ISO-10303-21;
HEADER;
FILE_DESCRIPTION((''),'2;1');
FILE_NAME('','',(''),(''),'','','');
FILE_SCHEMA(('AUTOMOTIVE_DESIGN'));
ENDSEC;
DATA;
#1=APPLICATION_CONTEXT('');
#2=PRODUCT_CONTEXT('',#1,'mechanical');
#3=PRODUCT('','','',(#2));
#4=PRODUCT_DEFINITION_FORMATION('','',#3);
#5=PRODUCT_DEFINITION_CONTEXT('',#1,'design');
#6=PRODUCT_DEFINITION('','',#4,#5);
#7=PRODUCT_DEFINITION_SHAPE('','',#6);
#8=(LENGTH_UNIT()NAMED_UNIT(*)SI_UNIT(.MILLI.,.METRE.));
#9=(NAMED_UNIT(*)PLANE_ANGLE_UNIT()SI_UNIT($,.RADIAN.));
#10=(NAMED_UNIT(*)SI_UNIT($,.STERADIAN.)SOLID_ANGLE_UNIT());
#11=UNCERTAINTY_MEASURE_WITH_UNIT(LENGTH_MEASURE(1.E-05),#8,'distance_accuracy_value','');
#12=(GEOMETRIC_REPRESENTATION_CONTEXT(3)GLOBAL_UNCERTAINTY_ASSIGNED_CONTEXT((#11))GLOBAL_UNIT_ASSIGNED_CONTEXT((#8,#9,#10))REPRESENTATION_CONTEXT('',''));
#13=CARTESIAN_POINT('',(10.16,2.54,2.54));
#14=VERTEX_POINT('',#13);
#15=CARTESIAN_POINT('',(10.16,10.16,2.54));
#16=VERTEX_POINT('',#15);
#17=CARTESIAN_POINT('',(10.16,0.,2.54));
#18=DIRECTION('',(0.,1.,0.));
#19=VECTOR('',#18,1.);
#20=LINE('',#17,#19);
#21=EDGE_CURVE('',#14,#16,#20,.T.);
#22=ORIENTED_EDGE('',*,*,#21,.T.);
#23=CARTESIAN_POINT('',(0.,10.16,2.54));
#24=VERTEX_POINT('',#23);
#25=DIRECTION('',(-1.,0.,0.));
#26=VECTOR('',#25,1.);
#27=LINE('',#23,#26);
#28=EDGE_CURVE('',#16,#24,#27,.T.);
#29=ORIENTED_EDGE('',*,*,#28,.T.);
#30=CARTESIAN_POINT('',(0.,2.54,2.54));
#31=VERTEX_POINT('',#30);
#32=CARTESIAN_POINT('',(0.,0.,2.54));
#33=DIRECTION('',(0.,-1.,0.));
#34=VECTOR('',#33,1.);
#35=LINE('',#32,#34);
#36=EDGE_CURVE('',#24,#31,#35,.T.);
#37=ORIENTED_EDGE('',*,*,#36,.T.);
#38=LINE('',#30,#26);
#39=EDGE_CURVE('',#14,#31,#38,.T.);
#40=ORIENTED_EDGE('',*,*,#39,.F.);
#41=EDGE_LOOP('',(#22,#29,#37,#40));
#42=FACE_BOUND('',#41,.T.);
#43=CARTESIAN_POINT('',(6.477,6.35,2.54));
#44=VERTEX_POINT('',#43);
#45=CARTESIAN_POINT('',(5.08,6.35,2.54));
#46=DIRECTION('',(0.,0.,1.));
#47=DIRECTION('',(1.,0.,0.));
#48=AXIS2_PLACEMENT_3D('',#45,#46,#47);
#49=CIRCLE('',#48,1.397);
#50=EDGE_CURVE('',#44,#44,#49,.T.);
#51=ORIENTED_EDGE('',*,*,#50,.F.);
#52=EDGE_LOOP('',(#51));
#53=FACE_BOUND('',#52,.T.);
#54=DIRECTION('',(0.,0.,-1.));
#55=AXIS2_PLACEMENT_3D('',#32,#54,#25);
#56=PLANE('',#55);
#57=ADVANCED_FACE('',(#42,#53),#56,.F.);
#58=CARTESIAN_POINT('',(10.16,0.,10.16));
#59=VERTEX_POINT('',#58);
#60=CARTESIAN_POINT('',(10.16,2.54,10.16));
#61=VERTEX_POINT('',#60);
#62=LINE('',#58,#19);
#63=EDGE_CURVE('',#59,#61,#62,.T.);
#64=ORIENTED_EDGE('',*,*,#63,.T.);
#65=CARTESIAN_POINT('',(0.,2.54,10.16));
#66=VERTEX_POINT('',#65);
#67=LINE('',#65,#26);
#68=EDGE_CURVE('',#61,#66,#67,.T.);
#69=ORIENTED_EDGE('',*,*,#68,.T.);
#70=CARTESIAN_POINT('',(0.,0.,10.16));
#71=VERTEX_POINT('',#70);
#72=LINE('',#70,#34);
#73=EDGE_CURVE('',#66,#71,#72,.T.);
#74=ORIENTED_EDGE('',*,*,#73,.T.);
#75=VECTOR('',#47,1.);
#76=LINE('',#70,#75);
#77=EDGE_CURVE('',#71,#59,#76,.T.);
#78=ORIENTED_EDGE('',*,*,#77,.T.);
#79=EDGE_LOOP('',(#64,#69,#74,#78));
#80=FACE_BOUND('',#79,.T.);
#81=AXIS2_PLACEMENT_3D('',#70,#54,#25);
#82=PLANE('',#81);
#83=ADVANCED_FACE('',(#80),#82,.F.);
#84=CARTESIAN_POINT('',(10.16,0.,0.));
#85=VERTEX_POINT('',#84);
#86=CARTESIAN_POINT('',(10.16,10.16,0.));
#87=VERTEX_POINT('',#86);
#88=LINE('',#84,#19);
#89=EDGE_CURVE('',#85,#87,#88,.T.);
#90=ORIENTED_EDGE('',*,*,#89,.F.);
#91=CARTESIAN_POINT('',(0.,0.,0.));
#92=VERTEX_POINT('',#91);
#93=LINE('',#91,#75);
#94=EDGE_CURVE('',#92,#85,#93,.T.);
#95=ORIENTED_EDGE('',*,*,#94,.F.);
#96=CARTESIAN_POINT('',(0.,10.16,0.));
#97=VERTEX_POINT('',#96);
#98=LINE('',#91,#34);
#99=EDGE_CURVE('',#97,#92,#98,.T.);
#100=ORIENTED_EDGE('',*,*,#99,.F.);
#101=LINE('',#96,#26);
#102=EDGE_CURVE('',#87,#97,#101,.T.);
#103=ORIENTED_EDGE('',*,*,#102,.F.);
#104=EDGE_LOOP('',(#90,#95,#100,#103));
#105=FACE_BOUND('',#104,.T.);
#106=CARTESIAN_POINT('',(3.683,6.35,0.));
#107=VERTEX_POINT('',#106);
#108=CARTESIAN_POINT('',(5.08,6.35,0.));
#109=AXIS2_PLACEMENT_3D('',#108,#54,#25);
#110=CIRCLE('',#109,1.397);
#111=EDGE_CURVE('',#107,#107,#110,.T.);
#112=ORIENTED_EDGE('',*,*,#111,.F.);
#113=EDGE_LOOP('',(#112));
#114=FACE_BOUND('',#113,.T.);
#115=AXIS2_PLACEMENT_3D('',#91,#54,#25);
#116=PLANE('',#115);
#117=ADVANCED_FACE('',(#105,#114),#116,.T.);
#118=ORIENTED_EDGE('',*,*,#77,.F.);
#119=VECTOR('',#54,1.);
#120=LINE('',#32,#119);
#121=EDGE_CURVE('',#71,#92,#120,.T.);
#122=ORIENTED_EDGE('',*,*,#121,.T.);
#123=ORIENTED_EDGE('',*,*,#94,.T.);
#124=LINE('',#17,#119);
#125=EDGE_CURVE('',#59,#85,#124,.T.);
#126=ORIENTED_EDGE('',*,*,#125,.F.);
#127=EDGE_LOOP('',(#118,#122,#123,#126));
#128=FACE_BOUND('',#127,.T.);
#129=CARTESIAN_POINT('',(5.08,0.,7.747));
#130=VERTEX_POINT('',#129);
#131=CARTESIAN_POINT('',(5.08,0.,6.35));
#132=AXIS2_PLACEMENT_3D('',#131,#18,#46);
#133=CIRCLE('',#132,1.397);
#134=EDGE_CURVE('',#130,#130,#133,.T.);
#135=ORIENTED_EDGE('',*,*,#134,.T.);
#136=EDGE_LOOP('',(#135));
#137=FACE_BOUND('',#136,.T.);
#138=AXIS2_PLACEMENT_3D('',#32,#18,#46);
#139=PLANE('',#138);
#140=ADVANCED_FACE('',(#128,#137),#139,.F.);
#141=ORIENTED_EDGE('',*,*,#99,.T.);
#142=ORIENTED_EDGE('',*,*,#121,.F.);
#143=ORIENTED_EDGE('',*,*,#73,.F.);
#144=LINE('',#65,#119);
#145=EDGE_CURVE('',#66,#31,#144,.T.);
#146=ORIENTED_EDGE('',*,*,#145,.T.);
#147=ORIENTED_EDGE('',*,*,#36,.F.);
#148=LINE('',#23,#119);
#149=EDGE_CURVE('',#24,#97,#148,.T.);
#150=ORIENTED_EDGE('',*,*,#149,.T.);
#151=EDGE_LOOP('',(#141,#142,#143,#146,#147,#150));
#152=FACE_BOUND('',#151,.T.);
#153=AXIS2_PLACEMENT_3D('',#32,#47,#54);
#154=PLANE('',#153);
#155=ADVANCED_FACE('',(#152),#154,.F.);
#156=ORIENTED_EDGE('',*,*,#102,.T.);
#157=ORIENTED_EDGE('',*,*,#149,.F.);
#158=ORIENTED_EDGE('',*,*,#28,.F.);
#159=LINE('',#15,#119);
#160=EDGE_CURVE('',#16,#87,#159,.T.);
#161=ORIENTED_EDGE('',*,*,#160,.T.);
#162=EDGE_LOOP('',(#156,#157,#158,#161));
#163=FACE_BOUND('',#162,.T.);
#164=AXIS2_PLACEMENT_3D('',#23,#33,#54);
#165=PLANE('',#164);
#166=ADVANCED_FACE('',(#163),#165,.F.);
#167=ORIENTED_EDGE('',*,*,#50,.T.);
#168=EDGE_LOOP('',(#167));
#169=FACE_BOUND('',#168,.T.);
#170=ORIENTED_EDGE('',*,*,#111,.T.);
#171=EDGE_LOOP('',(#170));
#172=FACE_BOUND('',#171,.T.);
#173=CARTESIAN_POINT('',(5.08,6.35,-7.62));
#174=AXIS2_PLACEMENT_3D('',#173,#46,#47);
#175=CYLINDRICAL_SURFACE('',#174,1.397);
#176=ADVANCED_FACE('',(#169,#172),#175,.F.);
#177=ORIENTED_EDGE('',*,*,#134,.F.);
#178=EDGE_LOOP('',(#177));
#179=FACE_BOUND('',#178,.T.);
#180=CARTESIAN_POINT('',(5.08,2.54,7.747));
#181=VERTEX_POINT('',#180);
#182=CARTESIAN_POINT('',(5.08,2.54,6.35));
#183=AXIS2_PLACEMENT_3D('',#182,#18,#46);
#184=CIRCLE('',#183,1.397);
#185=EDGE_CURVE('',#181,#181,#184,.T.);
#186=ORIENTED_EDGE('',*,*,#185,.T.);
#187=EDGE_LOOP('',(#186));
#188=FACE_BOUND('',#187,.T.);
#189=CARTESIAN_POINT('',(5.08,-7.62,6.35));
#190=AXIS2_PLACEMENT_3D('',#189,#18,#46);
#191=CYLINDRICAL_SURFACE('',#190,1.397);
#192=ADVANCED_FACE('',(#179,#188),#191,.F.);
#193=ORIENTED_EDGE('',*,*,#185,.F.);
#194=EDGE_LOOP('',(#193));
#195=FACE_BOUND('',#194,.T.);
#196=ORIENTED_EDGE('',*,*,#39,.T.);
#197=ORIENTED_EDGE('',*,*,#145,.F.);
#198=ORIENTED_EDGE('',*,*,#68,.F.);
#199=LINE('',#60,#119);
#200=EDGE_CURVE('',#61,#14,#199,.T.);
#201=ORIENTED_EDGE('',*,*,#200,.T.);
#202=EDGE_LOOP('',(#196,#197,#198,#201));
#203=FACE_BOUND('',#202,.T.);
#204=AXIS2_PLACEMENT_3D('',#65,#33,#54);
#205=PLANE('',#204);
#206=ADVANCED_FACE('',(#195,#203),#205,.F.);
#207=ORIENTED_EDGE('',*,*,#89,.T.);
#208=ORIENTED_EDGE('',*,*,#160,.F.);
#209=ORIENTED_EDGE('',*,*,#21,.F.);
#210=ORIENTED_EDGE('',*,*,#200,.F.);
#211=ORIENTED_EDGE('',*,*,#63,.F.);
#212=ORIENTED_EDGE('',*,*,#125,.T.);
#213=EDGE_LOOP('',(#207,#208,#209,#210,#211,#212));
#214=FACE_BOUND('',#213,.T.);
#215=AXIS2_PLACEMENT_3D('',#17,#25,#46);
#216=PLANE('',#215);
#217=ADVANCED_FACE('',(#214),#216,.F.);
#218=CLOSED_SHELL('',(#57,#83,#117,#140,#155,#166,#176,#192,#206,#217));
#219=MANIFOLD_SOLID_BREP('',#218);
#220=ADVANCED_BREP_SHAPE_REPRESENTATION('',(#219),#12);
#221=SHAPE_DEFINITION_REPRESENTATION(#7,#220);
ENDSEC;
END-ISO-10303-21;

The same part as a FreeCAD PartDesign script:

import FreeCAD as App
import Part
import Sketcher

V = App.Vector
Q = App.Units.Quantity


def add_polygon(sketch, points):
    """Adds a closed chain of lines whose ends are joined by coincident constraints."""
    first, n = sketch.GeometryCount, len(points)
    for a, b in zip(points, points[1:] + points[:1]):
        sketch.addGeometry(Part.LineSegment(App.Vector(*a, 0), App.Vector(*b, 0)), False)
    for i in range(n):
        sketch.addConstraint(Sketcher.Constraint("Coincident", first + i, 2, first + (i + 1) % n, 1))

doc = App.newDocument("Part")
body = doc.addObject("PartDesign::Body", "Body")

# Sketch on XY plane
sketch1 = body.newObject("Sketcher::SketchObject", "Sketch")
sketch1.AttachmentSupport = (doc.getObject("XY_Plane"), [""])
sketch1.MapMode = "FlatFace"
add_polygon(sketch1, [(0, 10), (0, 0), (10, 0), (10, 10)])  # lines 0-3
sketch1.addConstraint([
    Sketcher.Constraint("Vertical", 0),
    Sketcher.Constraint("Horizontal", 1),
    Sketcher.Constraint("Vertical", 2),
    Sketcher.Constraint("Horizontal", 3),
    Sketcher.Constraint("Coincident", 0, 2, -1, 1),
    Sketcher.Constraint("Equal", 3, 0),
    Sketcher.Constraint("DistanceX", 1, 1, 1, 2, Q("0.4 in")),
])
pad1 = body.newObject("PartDesign::Pad", "Pad")
pad1.Profile = sketch1
pad1.Length = Q("0.1 in")

# Sketch on XY plane
sketch2 = body.newObject("Sketcher::SketchObject", "Sketch001")
sketch2.AttachmentSupport = (doc.getObject("XY_Plane"), [""])
sketch2.MapMode = "FlatFace"
sketch2.AttachmentOffset = App.Placement(V(0, 0, 0.1 * 25.4), App.Rotation())
add_polygon(sketch2, [(0, 2.5), (0, 0), (10.2, 0), (10.2, 2.5)])  # lines 0-3
sketch2.addConstraint([
    Sketcher.Constraint("Vertical", 0),
    Sketcher.Constraint("Horizontal", 1),
    Sketcher.Constraint("Vertical", 2),
    Sketcher.Constraint("Horizontal", 3),
    Sketcher.Constraint("Coincident", 0, 2, -1, 1),
    Sketcher.Constraint("DistanceX", 1, 1, 1, 2, Q("0.4 in")),
    Sketcher.Constraint("DistanceY", 0, 2, 0, 1, Q("0.1 in")),
])
pad2 = body.newObject("PartDesign::Pad", "Pad001")
pad2.Profile = sketch2
pad2.Length = Q("0.3 in")

# Sketch on XY plane
sketch3 = body.newObject("Sketcher::SketchObject", "Sketch002")
sketch3.AttachmentSupport = (doc.getObject("XY_Plane"), [""])
sketch3.MapMode = "FlatFace"
sketch3.AttachmentOffset = App.Placement(V(0, 0, 0.1 * 25.4), App.Rotation())
sketch3.addGeometry(Part.Circle(V(5.1, 6.3, 0), V(0, 0, 1), 1.4), False)
sketch3.addConstraint([
    Sketcher.Constraint("Diameter", 0, Q("0.11 in")),
    Sketcher.Constraint("DistanceX", -1, 1, 0, 3, Q("0.2 in")),
    Sketcher.Constraint("DistanceY", -1, 1, 0, 3, Q("0.25 in")),
])
pocket1 = body.newObject("PartDesign::Pocket", "Pocket")
pocket1.Profile = sketch3
pocket1.Length = Q("0.4 in")

# Sketch on XZ plane
sketch4 = body.newObject("Sketcher::SketchObject", "Sketch003")
sketch4.AttachmentSupport = (doc.getObject("XZ_Plane"), [""])
sketch4.MapMode = "FlatFace"
sketch4.AttachmentOffset = App.Placement(V(0, 0, -0.1 * 25.4), App.Rotation())
sketch4.addGeometry(Part.Circle(V(5.1, 6.3, 0), V(0, 0, 1), 1.4), False)
sketch4.addConstraint([
    Sketcher.Constraint("Diameter", 0, Q("0.11 in")),
    Sketcher.Constraint("DistanceX", -1, 1, 0, 3, Q("0.2 in")),
    Sketcher.Constraint("DistanceY", -1, 1, 0, 3, Q("0.25 in")),
])
pocket2 = body.newObject("PartDesign::Pocket", "Pocket001")
pocket2.Profile = sketch4
pocket2.Length = Q("0.4 in")
pocket2.Reversed = True

doc.recompute()
